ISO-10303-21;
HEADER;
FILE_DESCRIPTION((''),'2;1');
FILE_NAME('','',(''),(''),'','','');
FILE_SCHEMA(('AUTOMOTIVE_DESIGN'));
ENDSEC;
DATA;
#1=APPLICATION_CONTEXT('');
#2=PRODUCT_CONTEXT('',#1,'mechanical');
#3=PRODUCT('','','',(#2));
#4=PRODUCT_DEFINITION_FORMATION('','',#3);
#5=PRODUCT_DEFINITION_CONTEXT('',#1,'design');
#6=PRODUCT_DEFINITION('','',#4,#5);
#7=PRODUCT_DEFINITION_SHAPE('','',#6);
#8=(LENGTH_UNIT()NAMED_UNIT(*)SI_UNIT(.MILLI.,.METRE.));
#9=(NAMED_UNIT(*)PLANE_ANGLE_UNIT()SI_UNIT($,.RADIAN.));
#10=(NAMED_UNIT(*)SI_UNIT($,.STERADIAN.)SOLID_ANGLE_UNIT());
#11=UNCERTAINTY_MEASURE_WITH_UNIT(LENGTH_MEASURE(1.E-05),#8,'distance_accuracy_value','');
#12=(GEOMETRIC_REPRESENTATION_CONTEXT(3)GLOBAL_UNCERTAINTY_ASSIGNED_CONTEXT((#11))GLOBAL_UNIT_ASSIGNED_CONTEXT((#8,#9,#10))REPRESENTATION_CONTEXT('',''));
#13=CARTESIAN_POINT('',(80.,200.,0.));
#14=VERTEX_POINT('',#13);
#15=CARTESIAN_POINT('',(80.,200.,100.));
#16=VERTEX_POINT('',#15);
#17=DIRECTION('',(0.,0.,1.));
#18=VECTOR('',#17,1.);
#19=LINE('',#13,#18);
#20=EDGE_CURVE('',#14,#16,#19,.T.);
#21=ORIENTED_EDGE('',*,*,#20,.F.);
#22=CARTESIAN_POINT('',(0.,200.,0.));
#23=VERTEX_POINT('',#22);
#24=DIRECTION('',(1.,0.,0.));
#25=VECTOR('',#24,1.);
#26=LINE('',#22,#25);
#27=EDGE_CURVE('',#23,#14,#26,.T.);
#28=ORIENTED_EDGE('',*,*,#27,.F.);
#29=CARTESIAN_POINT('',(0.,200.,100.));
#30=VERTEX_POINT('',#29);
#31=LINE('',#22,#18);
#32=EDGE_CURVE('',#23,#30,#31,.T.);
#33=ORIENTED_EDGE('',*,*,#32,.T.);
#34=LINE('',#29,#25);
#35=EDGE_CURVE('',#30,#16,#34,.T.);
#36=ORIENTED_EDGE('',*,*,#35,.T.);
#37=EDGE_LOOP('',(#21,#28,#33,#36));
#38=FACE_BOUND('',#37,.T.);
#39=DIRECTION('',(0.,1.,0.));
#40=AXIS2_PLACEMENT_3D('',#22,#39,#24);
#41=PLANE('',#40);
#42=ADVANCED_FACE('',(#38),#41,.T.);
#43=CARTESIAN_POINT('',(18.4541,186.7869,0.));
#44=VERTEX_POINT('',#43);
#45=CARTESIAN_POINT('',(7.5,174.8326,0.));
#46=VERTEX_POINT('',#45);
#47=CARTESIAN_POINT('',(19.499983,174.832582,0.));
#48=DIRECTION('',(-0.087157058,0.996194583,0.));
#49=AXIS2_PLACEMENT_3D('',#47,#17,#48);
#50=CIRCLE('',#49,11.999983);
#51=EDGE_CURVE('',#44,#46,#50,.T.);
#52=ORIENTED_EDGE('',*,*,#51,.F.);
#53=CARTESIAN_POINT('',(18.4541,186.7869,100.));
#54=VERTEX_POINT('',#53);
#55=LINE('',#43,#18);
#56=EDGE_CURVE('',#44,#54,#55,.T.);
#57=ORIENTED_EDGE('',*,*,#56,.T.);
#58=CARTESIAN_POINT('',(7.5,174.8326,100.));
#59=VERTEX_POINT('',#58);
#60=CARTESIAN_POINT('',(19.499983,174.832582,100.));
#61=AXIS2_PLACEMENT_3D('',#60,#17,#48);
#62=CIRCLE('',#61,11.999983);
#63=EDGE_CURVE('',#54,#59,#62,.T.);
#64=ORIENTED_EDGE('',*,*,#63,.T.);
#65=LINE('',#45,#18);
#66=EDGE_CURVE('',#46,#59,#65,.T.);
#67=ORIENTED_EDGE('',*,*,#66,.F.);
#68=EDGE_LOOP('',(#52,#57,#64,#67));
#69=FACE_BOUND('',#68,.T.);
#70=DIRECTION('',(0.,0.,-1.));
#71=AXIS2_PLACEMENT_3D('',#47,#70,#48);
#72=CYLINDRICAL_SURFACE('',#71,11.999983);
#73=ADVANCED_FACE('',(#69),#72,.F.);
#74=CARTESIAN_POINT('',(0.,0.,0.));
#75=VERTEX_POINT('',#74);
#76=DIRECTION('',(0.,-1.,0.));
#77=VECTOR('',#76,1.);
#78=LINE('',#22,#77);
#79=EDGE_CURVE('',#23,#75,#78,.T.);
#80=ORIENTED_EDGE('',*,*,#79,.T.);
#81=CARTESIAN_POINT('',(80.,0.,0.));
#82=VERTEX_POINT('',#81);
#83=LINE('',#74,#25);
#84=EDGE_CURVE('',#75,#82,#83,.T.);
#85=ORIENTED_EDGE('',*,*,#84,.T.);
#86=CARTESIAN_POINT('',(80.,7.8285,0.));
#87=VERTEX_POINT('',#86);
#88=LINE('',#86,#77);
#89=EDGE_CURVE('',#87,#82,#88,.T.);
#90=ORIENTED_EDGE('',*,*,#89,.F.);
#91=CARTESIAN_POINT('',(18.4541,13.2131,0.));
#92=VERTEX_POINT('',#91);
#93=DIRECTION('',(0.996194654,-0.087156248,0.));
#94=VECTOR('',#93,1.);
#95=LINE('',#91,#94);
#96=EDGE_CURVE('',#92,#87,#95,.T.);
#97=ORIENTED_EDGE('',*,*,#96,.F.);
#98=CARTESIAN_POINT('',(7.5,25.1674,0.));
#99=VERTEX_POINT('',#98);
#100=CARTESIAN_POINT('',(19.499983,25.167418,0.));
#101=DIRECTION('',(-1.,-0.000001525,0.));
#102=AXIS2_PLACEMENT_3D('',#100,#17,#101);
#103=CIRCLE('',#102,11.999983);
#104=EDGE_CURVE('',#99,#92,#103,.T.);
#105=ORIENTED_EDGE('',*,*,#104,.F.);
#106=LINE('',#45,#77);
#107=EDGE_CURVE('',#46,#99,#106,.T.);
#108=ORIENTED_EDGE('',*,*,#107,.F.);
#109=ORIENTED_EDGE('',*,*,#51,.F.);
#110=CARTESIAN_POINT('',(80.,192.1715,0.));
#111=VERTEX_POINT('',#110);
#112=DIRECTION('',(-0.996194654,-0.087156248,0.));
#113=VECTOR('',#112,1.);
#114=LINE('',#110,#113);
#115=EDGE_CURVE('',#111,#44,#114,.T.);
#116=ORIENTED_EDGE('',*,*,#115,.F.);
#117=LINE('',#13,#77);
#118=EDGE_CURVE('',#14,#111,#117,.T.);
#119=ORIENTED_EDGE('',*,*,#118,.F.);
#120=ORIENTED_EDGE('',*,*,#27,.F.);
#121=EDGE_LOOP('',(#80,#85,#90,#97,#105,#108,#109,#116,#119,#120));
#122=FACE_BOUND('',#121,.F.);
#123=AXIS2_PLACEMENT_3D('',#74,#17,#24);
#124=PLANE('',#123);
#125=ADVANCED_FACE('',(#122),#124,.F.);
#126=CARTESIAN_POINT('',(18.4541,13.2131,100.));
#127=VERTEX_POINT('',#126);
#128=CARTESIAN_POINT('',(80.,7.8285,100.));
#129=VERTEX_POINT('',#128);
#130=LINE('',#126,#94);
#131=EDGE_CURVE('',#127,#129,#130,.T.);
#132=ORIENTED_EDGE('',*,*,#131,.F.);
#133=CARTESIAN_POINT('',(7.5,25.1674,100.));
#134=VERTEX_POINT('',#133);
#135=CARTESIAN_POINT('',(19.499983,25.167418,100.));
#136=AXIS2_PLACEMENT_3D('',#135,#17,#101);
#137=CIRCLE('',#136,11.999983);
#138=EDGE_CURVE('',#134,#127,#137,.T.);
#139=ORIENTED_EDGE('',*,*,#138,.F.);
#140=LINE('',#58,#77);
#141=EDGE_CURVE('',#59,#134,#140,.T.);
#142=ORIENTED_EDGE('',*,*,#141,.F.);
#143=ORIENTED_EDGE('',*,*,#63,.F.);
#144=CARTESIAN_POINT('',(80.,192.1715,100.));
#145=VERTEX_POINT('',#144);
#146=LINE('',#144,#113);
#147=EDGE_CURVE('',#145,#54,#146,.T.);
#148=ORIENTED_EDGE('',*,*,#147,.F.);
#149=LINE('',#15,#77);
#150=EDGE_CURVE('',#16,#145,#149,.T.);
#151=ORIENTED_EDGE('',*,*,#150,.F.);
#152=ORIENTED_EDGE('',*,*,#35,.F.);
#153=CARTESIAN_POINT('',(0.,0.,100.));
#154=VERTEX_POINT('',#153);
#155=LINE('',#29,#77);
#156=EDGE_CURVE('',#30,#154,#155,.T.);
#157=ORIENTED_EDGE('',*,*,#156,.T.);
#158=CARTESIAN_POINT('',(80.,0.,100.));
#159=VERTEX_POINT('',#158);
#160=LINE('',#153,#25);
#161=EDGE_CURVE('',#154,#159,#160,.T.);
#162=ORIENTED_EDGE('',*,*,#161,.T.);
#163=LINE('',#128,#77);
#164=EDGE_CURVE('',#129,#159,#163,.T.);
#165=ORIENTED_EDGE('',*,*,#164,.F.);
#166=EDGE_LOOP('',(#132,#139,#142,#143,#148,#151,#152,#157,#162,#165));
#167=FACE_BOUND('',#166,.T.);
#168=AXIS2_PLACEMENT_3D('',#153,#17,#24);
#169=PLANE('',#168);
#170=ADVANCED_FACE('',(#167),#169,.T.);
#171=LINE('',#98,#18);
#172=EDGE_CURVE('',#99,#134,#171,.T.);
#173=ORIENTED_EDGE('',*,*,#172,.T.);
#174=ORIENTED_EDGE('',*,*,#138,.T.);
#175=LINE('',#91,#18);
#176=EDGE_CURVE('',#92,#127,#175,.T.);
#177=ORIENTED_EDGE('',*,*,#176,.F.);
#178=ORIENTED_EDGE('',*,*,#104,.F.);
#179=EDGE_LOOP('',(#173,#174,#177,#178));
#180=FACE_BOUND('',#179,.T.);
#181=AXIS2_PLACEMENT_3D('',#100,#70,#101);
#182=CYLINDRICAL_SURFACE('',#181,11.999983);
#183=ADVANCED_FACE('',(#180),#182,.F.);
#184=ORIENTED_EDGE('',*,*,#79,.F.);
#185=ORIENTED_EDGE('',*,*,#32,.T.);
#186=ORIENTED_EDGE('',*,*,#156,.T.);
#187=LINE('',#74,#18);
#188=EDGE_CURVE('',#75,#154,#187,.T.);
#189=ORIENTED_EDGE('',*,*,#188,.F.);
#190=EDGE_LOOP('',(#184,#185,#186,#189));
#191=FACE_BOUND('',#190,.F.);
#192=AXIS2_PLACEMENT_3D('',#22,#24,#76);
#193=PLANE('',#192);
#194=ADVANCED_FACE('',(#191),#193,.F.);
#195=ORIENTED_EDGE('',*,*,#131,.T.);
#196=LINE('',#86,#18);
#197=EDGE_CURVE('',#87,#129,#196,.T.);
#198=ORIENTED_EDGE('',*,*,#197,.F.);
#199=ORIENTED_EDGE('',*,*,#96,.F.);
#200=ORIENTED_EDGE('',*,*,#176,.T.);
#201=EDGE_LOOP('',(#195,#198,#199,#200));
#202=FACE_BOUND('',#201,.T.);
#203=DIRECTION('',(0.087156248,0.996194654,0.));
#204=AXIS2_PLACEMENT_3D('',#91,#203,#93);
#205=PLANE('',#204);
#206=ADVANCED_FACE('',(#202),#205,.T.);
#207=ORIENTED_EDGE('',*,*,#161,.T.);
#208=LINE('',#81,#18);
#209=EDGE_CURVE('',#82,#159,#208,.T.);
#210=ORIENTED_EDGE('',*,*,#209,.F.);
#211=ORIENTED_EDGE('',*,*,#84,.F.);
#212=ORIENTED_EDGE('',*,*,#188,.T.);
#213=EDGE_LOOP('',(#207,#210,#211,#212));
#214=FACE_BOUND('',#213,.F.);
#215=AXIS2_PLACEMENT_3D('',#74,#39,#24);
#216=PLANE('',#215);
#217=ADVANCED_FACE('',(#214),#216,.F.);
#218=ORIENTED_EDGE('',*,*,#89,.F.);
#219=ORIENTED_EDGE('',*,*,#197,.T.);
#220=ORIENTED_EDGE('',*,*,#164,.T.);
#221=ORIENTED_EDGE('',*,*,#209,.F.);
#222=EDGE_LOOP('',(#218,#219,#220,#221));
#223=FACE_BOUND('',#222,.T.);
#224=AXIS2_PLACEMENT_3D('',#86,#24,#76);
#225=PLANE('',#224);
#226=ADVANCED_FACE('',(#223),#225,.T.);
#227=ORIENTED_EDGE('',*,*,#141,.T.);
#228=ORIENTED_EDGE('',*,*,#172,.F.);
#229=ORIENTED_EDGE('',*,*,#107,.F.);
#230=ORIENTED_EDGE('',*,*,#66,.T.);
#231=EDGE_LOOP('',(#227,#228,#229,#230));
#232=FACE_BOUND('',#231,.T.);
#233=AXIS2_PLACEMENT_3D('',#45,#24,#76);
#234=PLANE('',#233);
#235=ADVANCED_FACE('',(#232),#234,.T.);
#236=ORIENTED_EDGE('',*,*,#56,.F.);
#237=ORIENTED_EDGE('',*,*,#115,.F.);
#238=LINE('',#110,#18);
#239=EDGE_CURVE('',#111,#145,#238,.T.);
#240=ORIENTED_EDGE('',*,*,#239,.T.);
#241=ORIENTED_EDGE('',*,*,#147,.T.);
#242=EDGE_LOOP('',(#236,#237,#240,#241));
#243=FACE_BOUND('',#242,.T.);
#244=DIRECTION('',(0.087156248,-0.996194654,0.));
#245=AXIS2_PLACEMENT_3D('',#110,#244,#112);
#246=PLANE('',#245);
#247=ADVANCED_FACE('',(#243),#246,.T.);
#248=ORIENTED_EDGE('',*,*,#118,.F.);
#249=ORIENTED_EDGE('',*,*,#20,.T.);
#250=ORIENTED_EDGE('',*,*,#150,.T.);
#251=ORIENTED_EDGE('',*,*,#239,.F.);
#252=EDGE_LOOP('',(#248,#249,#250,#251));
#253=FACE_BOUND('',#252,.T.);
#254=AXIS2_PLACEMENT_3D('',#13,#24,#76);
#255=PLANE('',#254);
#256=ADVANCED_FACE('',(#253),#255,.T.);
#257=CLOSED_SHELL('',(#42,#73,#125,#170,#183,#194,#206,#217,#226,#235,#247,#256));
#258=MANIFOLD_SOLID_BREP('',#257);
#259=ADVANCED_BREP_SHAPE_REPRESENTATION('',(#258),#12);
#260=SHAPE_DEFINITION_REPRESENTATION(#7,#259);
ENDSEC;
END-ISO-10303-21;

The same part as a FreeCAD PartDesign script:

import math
import FreeCAD as App
import Part
import Sketcher
Q = App.Units.Quantity

doc = App.newDocument("Part")
body = doc.addObject("PartDesign::Body", "Body")

sketch1 = body.newObject("Sketcher::SketchObject", "Sketch")
sketch1.AttachmentSupport = (doc.getObject("XY_Plane"), [""])
sketch1.MapMode = "FlatFace"
sketch1.addGeometry([
    Part.LineSegment(App.Vector(8, 25, 0), App.Vector(8, 175, 0)),
    Part.ArcOfCircle(Part.Circle(App.Vector(20, 175, 0), App.Vector(0, 0, 1), 12), math.radians(95), math.radians(180)),
    Part.LineSegment(App.Vector(18, 187, 0), App.Vector(80, 192, 0)),
    Part.LineSegment(App.Vector(80, 192, 0), App.Vector(80, 200, 0)),
    Part.LineSegment(App.Vector(80, 200, 0), App.Vector(0, 200, 0)),
    Part.LineSegment(App.Vector(0, 200, 0), App.Vector(0, 0, 0)),
    Part.LineSegment(App.Vector(0, 0, 0), App.Vector(80, 0, 0)),
    Part.LineSegment(App.Vector(80, 0, 0), App.Vector(80, 8, 0)),
    Part.LineSegment(App.Vector(80, 8, 0), App.Vector(18, 13, 0)),
    Part.ArcOfCircle(Part.Circle(App.Vector(20, 25, 0), App.Vector(0, 0, 1), 12), math.radians(180), math.radians(265)),
], False)
sketch1.addConstraint([
    Sketcher.Constraint("Tangent", 0, 2, 1, 2),
    Sketcher.Constraint("Tangent", 1, 1, 2, 1),
    Sketcher.Constraint("Coincident", 2, 2, 3, 1),
    Sketcher.Constraint("Coincident", 3, 2, 4, 1),
    Sketcher.Constraint("Coincident", 4, 2, 5, 1),
    Sketcher.Constraint("Coincident", 5, 2, 6, 1),
    Sketcher.Constraint("Coincident", 6, 2, 7, 1),
    Sketcher.Constraint("Coincident", 7, 2, 8, 1),
    Sketcher.Constraint("Tangent", 8, 2, 9, 2),
    Sketcher.Constraint("Tangent", 9, 1, 0, 1),
    Sketcher.Constraint("Vertical", 0),
    Sketcher.Constraint("Vertical", 3),
    Sketcher.Constraint("Horizontal", 4),
    Sketcher.Constraint("Vertical", 5),
    Sketcher.Constraint("Horizontal", 6),
    Sketcher.Constraint("Vertical", 7),
    Sketcher.Constraint("Coincident", 5, 2, -1, 1),
    Sketcher.Constraint("Equal", 1, 9),
    Sketcher.Constraint("Vertical", 3, 2, 6, 2),
    Sketcher.Constraint("Vertical", 1, 1, 8, 2),
    Sketcher.Constraint("Equal", 3, 7),
    Sketcher.Constraint("Radius", 1, Q("12 mm")),
    Sketcher.Constraint("DistanceX", 4, 2, 4, 1, Q("80 mm")),
    Sketcher.Constraint("DistanceY", 5, 2, 5, 1, Q("200 mm")),
    Sketcher.Constraint("Angle", 2, Q("5 deg")),
    Sketcher.Constraint("DistanceX", -1, 1, 1, 3, Q("19.5 mm")),
    Sketcher.Constraint("DistanceY", 0, 1, 0, 2, Q("149.6652 mm")),
])
pad1 = body.newObject("PartDesign::Pad", "Pad")
pad1.Profile = sketch1
pad1.Length = 100

doc.recompute()
